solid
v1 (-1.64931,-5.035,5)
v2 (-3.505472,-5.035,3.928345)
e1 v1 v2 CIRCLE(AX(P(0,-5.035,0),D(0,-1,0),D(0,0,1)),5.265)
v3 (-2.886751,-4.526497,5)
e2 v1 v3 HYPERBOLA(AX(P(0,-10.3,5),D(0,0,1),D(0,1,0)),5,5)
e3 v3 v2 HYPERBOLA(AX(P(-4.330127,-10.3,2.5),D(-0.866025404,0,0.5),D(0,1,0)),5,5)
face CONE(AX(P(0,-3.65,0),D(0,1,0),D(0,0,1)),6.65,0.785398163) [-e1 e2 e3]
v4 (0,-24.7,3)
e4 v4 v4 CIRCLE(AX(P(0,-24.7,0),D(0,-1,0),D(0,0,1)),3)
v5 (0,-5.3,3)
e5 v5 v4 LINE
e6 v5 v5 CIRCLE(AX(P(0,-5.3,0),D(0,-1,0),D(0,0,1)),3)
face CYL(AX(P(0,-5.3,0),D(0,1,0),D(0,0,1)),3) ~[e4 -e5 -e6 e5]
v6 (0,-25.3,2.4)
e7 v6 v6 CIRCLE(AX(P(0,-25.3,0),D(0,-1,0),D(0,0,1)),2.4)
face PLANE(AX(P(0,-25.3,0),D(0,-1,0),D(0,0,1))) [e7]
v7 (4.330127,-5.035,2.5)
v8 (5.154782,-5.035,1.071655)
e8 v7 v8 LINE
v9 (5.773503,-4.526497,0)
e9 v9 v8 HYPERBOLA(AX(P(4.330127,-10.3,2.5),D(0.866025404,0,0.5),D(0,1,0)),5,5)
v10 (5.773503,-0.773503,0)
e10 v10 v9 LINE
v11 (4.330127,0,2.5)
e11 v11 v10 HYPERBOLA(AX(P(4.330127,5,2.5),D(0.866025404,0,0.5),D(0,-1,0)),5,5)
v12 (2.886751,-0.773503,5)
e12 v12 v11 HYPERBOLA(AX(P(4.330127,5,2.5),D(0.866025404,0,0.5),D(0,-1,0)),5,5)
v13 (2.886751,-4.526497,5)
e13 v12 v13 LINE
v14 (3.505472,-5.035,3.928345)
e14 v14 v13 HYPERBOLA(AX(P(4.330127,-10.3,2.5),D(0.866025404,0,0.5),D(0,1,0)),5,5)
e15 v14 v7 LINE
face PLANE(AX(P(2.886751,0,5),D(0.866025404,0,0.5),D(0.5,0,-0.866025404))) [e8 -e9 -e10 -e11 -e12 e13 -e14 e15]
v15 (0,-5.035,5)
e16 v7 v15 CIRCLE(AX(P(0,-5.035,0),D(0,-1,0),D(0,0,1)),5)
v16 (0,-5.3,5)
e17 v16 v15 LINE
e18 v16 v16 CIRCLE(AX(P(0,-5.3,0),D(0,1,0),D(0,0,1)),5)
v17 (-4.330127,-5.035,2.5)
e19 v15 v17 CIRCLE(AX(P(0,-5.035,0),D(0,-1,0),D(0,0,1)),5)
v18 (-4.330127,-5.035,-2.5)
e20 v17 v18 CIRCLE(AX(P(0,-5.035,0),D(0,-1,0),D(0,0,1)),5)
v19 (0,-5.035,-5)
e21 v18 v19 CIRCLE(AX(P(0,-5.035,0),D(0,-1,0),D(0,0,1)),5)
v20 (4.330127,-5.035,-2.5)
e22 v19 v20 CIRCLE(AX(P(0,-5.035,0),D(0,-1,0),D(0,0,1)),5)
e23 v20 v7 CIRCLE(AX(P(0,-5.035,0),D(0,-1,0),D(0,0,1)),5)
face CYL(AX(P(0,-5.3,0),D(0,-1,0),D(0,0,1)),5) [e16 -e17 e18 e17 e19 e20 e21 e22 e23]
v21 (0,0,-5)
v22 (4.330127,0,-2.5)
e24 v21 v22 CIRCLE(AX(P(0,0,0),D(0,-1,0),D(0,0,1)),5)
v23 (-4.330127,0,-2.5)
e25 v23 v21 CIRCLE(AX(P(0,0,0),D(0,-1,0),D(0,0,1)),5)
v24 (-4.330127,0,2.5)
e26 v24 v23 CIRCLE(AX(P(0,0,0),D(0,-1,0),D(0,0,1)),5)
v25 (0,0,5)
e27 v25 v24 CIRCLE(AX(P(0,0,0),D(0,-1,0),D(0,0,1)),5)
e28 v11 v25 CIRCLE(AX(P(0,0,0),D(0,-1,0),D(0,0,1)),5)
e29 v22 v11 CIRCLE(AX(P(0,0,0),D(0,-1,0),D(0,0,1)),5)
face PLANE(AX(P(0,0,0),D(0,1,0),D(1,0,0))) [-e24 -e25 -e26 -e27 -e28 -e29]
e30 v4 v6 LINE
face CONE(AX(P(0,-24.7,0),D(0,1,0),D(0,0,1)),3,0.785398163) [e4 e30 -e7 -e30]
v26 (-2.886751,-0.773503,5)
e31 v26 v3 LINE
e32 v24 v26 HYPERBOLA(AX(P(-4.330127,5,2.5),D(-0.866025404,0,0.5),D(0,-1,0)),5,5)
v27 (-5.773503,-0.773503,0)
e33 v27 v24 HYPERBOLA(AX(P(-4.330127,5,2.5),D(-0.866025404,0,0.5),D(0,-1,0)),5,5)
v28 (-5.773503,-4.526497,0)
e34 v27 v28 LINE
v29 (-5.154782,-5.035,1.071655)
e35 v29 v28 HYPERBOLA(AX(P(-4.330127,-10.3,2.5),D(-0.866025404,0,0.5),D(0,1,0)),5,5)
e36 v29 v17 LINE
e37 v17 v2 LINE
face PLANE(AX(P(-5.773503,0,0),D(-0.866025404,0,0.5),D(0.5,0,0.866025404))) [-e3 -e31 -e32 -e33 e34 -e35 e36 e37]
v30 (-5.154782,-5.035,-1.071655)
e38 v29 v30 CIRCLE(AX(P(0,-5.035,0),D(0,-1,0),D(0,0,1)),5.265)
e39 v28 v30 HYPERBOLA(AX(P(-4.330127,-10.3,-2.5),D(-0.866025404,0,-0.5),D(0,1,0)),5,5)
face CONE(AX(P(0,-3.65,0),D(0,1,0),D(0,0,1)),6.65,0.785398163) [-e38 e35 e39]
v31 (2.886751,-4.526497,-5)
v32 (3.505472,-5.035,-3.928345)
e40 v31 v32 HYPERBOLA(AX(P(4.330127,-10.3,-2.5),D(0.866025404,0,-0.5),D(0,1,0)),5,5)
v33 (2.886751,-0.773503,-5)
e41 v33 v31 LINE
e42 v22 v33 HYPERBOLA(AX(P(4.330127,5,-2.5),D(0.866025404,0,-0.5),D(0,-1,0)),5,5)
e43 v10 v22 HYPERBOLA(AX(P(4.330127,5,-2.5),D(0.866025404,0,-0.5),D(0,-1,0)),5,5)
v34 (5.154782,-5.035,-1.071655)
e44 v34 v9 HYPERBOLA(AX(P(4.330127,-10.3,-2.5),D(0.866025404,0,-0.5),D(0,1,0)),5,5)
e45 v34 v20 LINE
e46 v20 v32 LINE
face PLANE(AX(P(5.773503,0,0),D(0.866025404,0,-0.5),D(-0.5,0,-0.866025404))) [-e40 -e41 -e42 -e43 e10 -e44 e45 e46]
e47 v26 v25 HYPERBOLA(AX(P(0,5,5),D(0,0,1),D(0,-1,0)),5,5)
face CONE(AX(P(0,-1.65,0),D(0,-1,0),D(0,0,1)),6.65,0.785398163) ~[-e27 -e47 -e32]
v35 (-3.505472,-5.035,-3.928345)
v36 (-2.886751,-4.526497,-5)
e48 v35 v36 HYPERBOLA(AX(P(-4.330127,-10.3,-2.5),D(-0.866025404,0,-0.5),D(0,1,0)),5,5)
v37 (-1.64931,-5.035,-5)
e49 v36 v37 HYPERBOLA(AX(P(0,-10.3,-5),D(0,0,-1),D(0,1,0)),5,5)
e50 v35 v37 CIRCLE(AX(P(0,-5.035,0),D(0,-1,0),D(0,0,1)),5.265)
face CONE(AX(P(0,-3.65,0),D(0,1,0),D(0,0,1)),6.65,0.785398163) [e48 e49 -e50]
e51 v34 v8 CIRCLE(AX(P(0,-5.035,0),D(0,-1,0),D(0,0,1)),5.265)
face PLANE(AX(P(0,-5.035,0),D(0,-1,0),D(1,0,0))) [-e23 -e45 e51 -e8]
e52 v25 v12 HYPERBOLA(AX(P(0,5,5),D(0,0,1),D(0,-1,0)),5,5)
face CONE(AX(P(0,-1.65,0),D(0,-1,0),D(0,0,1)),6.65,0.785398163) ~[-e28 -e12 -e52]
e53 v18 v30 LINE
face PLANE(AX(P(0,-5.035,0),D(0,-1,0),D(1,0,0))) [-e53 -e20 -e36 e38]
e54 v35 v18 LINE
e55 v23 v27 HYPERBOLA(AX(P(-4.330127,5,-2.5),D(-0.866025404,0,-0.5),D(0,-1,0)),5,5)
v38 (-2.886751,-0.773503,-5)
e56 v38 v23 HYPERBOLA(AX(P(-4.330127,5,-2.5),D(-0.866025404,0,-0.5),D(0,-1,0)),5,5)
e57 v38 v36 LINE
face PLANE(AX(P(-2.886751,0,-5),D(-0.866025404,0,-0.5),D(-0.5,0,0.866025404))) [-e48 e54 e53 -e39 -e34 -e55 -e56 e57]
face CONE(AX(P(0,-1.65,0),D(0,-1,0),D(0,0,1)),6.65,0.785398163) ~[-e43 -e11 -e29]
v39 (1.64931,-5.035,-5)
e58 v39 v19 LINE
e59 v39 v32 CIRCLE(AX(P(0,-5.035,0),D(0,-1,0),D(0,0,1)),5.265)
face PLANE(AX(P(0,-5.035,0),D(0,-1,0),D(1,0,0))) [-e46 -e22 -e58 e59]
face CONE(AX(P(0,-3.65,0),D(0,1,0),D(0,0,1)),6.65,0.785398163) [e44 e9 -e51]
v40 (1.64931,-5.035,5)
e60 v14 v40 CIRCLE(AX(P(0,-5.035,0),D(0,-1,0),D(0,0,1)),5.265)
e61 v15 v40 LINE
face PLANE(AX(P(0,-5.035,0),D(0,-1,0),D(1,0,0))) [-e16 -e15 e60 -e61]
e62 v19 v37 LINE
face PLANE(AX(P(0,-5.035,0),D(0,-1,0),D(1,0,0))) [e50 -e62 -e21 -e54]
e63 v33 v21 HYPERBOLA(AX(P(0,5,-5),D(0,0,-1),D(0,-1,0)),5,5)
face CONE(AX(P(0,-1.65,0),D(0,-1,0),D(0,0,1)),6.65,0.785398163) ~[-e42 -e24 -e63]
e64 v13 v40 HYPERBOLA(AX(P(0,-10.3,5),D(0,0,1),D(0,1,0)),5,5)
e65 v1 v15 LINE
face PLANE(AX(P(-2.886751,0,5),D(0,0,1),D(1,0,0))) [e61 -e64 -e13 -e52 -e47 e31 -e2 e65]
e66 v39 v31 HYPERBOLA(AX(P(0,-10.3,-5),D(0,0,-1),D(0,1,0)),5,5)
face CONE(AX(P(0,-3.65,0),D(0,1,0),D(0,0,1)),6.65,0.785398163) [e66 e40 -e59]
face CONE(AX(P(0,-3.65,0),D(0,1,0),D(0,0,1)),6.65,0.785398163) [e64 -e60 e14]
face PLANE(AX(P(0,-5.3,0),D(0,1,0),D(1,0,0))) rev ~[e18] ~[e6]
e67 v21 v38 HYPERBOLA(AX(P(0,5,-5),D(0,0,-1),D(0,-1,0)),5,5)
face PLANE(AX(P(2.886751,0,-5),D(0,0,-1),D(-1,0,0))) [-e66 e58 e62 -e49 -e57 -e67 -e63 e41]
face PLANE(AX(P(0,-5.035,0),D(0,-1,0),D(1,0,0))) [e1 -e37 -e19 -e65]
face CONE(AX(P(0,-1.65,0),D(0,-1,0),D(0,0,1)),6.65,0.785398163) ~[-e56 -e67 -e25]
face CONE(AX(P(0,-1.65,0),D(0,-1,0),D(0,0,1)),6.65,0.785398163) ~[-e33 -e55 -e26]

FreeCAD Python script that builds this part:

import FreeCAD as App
import Part
import Sketcher
Q = App.Units.Quantity


def edges_at(feature, points):
    """Names of the edges that pass closest to the given points."""
    edges = feature.Shape.Edges
    near = lambda p: min(range(len(edges)), key=lambda i: edges[i].distToShape(Part.Vertex(*p))[0])
    return sorted({f"Edge{near(p) + 1}" for p in points})


def add_polygon(sketch, points):
    """Adds a closed chain of lines whose ends are joined by coincident constraints."""
    first, n = sketch.GeometryCount, len(points)
    for a, b in zip(points, points[1:] + points[:1]):
        sketch.addGeometry(Part.LineSegment(App.Vector(*a, 0), App.Vector(*b, 0)), False)
    for i in range(n):
        sketch.addConstraint(Sketcher.Constraint("Coincident", first + i, 2, first + (i + 1) % n, 1))

doc = App.newDocument("Part")
body = doc.addObject("PartDesign::Body", "Body")

sketch1 = doc.addObject("Sketcher::SketchObject", "Sketch")
body.addObject(sketch1)
sketch1.AttachmentSupport = (doc.XZ_Plane, [""])
sketch1.MapMode = "FlatFace"
add_polygon(sketch1, [(6, 0), (3, -5), (-3, -5), (-6, 0), (-3, 5), (3, 5)])
sketch1.addConstraint([
    Sketcher.Constraint("Horizontal", 1),
    Sketcher.Constraint("Horizontal", 4),
    Sketcher.Constraint("Symmetric", 0, 2, 3, 2, -1, 1),
    Sketcher.Constraint("Symmetric", 2, 2, 5, 2, -1, 1),
    Sketcher.Constraint("PointOnObject", 2, 2, -1),
    Sketcher.Constraint("Parallel", 2, 5),
    Sketcher.Constraint("Vertical", 1, 2, 3, 2),
    Sketcher.Constraint("Angle", 0, Q("-120 deg")),
    Sketcher.Constraint("DistanceY", 0, 2, -1, 1, 5.0),
    Sketcher.Constraint("DistanceX", 1, 2, 1, 1, 5.773503),
])
pad1 = doc.addObject("PartDesign::Pad", "Pad")
body.addObject(pad1)
pad1.Profile = sketch1
pad1.Length = 5.3

sketch2 = doc.addObject("Sketcher::SketchObject", "Sketch001")
body.addObject(sketch2)
sketch2.AttachmentSupport = (doc.YZ_Plane, [""])
sketch2.MapMode = "FlatFace"
add_polygon(sketch2, [(0, 5), (0, 6.7), (-1.6, 6.7)])
add_polygon(sketch2, [(-5.3, 5), (-3.6, 6.7), (-5.3, 6.7)])
sketch2.addConstraint([
    Sketcher.Constraint("Vertical", 0),
    Sketcher.Constraint("Horizontal", 1),
    Sketcher.Constraint("Horizontal", 4),
    Sketcher.Constraint("Vertical", 5),
    Sketcher.Constraint("PointOnObject", 0, 2, -2),
    Sketcher.Constraint("Perpendicular", 2, 3),
    Sketcher.Constraint("Horizontal", 1, 2, 3, 2),
    Sketcher.Constraint("Horizontal", 2, 2, 5, 2),
    Sketcher.Constraint("Equal", 1, 4),
    Sketcher.Constraint("DistanceY", -1, 1, 2, 2, 5.0),
    Sketcher.Constraint("DistanceX", 3, 2, 1, 2, 2.0),
    Sketcher.Constraint("DistanceX", 1, 2, 1, 1, 1.65),
])
groove = doc.addObject("PartDesign::Groove", "Groove")
body.addObject(groove)
groove.Profile = sketch2
groove.ReferenceAxis = (sketch2, ["H_Axis"])
groove.Angle = 360

sketch3 = doc.addObject("Sketcher::SketchObject", "Sketch002")
body.addObject(sketch3)
sketch3.AttachmentSupport = (doc.XZ_Plane, [""])
sketch3.MapMode = "FlatFace"
sketch3.AttachmentOffset = App.Placement(App.Vector(0, 0, 5.3), App.Rotation())
add_polygon(sketch3, [(-8, 8), (-8, -8), (8, -8), (8, 8)])
sketch3.addGeometry(Part.Circle(App.Vector(0, 0, 0), App.Vector(0, 0, 1), 5), False)
sketch3.addConstraint([
    Sketcher.Constraint("Vertical", 0),
    Sketcher.Constraint("Horizontal", 1),
    Sketcher.Constraint("Vertical", 2),
    Sketcher.Constraint("Horizontal", 3),
    Sketcher.Constraint("Coincident", 4, 3, -1, 1),
    Sketcher.Constraint("Symmetric", 0, 2, 2, 2, -1, 1),
    Sketcher.Constraint("Diameter", 4, 10.0),
    Sketcher.Constraint("DistanceX", 1, 1, 1, 2, 16.782),
    Sketcher.Constraint("DistanceY", 0, 2, 0, 1, 15.234),
])
pocket1 = doc.addObject("PartDesign::Pocket", "Pocket")
body.addObject(pocket1)
pocket1.Profile = sketch3
pocket1.Length = 0.265

sketch4 = doc.addObject("Sketcher::SketchObject", "Sketch003")
body.addObject(sketch4)
sketch4.AttachmentSupport = (doc.XZ_Plane, [""])
sketch4.MapMode = "FlatFace"
sketch4.AttachmentOffset = App.Placement(App.Vector(0, 0, 5.3), App.Rotation())
sketch4.addGeometry(Part.Circle(App.Vector(0, 0, 0), App.Vector(0, 0, 1), 3), False)
sketch4.addConstraint([
    Sketcher.Constraint("Coincident", 0, 3, -1, 1),
    Sketcher.Constraint("Diameter", 0, 6.0),
])
pad2 = doc.addObject("PartDesign::Pad", "Pad001")
body.addObject(pad2)
pad2.Profile = sketch4
pad2.Length = 20
doc.recompute()

chamfer = doc.addObject("PartDesign::Chamfer", "Chamfer")
body.addObject(chamfer)
chamfer.Base = (pad2, edges_at(pad2, [(0, -25.3, -3)]))
chamfer.Size = 0.6

doc.recompute()
